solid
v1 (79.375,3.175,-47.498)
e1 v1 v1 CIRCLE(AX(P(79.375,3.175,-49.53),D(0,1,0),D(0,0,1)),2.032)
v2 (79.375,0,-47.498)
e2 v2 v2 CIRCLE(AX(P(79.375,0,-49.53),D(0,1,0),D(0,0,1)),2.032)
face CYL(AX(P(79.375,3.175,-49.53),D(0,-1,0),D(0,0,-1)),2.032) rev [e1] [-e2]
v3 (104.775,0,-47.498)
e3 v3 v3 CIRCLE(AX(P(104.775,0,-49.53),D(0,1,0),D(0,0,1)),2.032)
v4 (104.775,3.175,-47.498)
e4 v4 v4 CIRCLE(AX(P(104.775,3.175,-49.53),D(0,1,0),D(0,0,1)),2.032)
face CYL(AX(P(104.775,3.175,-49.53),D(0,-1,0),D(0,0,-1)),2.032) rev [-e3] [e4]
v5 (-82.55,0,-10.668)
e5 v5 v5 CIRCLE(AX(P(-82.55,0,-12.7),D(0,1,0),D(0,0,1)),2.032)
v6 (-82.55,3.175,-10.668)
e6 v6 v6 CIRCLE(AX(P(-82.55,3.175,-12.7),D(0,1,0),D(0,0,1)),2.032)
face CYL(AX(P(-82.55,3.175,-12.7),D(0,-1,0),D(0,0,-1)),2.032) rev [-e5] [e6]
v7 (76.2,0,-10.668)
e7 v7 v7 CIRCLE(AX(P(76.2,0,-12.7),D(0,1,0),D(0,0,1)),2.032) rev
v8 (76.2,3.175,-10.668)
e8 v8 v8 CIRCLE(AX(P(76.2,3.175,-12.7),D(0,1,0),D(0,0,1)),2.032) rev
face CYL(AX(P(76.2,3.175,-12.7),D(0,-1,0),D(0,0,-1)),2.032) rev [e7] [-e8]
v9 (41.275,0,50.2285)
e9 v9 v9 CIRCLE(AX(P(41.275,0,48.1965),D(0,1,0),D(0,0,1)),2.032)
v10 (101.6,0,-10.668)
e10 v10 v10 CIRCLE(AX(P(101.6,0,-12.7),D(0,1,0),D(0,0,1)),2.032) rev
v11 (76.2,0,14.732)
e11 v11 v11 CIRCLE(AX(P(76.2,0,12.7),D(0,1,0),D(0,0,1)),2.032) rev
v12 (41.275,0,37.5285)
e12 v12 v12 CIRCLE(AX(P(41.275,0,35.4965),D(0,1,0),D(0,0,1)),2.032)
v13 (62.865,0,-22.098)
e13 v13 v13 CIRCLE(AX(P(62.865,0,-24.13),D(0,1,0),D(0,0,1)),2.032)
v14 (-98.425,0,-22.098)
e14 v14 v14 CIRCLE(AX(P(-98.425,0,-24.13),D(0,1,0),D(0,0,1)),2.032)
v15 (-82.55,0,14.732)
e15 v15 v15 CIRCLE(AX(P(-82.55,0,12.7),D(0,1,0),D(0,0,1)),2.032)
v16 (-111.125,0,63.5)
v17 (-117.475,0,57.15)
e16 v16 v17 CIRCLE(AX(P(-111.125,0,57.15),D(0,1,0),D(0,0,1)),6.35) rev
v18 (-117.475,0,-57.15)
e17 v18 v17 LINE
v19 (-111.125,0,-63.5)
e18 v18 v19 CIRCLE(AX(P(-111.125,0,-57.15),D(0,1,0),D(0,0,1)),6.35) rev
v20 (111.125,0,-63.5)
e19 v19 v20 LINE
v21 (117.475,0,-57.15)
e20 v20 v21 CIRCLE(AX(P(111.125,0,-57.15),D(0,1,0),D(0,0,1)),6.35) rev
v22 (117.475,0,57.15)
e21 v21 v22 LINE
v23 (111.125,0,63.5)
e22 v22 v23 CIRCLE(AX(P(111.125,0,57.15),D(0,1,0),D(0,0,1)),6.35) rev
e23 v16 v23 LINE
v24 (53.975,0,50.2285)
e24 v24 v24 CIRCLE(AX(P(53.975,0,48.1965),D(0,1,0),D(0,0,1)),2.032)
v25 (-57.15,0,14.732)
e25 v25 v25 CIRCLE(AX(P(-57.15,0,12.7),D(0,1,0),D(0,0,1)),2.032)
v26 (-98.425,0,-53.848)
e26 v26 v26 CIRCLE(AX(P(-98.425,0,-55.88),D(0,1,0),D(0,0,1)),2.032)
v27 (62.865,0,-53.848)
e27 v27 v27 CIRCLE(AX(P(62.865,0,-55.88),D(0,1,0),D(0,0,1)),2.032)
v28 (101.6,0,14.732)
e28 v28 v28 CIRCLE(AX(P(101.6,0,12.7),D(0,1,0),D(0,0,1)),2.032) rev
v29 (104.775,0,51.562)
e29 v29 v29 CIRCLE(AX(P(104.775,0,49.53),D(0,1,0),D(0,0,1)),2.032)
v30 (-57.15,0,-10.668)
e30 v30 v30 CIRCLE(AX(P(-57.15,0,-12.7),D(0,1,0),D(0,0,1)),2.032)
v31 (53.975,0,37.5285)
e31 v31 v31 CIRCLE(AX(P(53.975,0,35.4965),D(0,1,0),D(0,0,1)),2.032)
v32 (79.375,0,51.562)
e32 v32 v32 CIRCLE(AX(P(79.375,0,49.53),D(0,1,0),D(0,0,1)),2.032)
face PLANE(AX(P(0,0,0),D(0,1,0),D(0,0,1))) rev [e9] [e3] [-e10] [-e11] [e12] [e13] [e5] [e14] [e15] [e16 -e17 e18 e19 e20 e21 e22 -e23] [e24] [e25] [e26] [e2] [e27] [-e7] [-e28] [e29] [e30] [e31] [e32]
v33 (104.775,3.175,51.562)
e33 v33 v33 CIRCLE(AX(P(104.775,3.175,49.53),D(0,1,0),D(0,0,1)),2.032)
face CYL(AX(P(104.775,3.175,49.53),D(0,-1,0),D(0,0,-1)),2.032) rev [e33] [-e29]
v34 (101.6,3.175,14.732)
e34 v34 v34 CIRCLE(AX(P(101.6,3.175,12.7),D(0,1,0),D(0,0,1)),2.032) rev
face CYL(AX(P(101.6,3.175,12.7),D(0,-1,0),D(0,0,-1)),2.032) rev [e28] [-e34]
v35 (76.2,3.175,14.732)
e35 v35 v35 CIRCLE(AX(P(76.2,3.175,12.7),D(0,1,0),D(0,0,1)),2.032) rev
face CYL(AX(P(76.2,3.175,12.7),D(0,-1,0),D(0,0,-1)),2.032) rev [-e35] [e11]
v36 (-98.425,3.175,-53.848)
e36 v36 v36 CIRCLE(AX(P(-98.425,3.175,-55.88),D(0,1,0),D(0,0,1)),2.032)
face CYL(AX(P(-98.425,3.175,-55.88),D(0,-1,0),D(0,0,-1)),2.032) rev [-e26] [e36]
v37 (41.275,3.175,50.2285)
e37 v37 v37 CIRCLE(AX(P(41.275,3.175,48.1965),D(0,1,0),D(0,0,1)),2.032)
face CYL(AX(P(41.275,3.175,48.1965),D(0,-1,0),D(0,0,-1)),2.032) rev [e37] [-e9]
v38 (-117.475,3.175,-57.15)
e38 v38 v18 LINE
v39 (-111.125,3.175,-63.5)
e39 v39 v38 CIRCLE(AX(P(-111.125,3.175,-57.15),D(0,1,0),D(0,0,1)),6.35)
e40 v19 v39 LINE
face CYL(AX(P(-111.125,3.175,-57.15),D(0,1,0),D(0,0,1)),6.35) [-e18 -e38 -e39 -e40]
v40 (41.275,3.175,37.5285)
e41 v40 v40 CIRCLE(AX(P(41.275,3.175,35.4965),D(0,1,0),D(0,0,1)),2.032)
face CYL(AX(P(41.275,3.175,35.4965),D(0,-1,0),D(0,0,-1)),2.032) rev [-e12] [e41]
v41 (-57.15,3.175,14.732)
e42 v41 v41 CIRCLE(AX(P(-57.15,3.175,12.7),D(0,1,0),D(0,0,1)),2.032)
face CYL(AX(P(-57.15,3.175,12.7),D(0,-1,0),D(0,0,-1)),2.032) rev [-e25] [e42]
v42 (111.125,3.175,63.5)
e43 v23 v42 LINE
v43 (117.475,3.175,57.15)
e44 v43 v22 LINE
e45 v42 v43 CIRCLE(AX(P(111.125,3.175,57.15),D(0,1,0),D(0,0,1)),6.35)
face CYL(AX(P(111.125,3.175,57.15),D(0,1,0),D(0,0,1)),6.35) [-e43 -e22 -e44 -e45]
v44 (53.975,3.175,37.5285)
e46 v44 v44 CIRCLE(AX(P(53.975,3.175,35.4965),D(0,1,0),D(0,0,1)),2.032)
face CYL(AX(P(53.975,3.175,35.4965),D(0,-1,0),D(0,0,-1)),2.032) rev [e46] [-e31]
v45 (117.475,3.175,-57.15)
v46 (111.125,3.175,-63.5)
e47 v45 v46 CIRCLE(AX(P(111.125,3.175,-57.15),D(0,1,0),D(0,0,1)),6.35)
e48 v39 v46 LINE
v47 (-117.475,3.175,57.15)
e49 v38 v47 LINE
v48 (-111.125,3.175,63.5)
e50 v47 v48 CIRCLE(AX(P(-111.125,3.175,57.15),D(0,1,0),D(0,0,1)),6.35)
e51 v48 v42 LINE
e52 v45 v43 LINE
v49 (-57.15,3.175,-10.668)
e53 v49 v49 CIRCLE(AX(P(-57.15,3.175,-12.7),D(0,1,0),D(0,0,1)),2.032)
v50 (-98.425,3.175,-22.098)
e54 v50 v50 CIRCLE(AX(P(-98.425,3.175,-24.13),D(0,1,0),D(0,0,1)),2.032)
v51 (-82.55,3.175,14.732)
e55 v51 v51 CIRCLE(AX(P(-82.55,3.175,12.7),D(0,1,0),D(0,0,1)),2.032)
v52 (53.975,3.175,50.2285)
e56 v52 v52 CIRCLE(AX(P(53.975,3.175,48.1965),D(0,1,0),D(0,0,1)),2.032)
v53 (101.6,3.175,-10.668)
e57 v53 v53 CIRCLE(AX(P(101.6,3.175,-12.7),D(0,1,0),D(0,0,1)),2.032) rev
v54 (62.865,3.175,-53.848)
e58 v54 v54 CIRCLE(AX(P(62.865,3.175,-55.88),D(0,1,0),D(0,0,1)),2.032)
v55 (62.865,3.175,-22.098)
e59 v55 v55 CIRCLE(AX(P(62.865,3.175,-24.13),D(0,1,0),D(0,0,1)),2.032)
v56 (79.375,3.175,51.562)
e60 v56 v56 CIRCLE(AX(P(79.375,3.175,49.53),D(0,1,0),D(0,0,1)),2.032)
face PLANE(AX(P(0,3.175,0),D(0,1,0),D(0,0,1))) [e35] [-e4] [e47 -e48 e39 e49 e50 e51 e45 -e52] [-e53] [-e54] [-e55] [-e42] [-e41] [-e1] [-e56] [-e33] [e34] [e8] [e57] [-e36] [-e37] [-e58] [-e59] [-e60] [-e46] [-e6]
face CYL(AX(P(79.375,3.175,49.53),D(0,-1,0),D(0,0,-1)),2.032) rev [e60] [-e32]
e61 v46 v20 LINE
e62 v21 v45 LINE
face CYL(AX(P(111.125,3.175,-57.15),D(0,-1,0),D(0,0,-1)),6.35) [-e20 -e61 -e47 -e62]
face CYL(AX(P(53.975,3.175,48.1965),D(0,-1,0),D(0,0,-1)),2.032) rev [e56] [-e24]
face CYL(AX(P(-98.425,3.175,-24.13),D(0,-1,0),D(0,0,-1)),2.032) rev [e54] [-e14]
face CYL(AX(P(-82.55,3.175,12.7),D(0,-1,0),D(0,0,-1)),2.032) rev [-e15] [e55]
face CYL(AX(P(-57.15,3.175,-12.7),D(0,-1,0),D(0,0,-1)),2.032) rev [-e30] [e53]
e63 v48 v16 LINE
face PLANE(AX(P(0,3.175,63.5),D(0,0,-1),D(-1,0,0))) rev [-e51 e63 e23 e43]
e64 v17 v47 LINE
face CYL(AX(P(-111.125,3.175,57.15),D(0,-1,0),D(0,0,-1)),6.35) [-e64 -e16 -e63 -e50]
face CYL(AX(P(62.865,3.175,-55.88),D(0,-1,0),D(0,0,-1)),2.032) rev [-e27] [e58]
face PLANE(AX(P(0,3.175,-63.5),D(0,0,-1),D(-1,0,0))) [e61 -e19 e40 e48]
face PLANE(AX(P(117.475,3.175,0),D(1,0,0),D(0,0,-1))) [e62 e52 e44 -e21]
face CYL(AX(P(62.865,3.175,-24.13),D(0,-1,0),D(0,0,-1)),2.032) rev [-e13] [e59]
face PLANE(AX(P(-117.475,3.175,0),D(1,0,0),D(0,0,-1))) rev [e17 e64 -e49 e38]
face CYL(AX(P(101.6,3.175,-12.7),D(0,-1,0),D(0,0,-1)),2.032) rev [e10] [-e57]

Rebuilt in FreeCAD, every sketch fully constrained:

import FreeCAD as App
import Part
import Sketcher
Q = App.Units.Quantity


def edges_at(feature, points):
    """Names of the edges that pass closest to the given points."""
    edges = feature.Shape.Edges
    near = lambda p: min(range(len(edges)), key=lambda i: edges[i].distToShape(Part.Vertex(*p))[0])
    return sorted({f"Edge{near(p) + 1}" for p in points})


def add_polygon(sketch, points):
    """Adds a closed chain of lines whose ends are joined by coincident constraints."""
    first, n = sketch.GeometryCount, len(points)
    for a, b in zip(points, points[1:] + points[:1]):
        sketch.addGeometry(Part.LineSegment(App.Vector(*a, 0), App.Vector(*b, 0)), False)
    for i in range(n):
        sketch.addConstraint(Sketcher.Constraint("Coincident", first + i, 2, first + (i + 1) % n, 1))

doc = App.newDocument("Part")
body = doc.addObject("PartDesign::Body", "Body")

sketch1 = body.newObject("Sketcher::SketchObject", "Sketch")
sketch1.AttachmentSupport = (doc.getObject("XZ_Plane"), [""])
sketch1.MapMode = "FlatFace"
add_polygon(sketch1, [(-117.475, -63.5), (-117.475, 63.5), (117.475, 63.5), (117.475, -63.5)])
sketch1.addGeometry(Part.Circle(App.Vector(-82.55, 12.7, 0), App.Vector(0, 0, 1), 2.032), False)
sketch1.addGeometry(Part.Circle(App.Vector(-57.15, 12.7, 0), App.Vector(0, 0, 1), 2.032), False)
sketch1.addGeometry(Part.Circle(App.Vector(41.275, 48.1965, 0), App.Vector(0, 0, 1), 2.032), False)
sketch1.addGeometry(Part.Circle(App.Vector(53.975, 48.1965, 0), App.Vector(0, 0, 1), 2.032), False)
sketch1.addGeometry(Part.Circle(App.Vector(41.275, 35.4965, 0), App.Vector(0, 0, 1), 2.032), False)
sketch1.addGeometry(Part.Circle(App.Vector(53.975, 35.4965, 0), App.Vector(0, 0, 1), 2.032), False)
sketch1.addGeometry(Part.Circle(App.Vector(79.375, 49.53, 0), App.Vector(0, 0, 1), 2.032), False)
sketch1.addGeometry(Part.Circle(App.Vector(104.775, 49.53, 0), App.Vector(0, 0, 1), 2.032), False)
sketch1.addGeometry(Part.Circle(App.Vector(76.2, 12.7, 0), App.Vector(0, 0, 1), 2.032), False)
sketch1.addGeometry(Part.Circle(App.Vector(101.6, 12.7, 0), App.Vector(0, 0, 1), 2.032), False)
sketch1.addGeometry(Part.Circle(App.Vector(-82.55, -12.7, 0), App.Vector(0, 0, 1), 2.032), False)
sketch1.addGeometry(Part.Circle(App.Vector(-57.15, -12.7, 0), App.Vector(0, 0, 1), 2.032), False)
sketch1.addGeometry(Part.Circle(App.Vector(-98.425, -24.13, 0), App.Vector(0, 0, 1), 2.032), False)
sketch1.addGeometry(Part.Circle(App.Vector(-98.425, -55.88, 0), App.Vector(0, 0, 1), 2.032), False)
sketch1.addGeometry(Part.Circle(App.Vector(76.2, -12.7, 0), App.Vector(0, 0, 1), 2.032), False)
sketch1.addGeometry(Part.Circle(App.Vector(101.6, -12.7, 0), App.Vector(0, 0, 1), 2.032), False)
sketch1.addGeometry(Part.Circle(App.Vector(62.865, -24.13, 0), App.Vector(0, 0, 1), 2.032), False)
sketch1.addGeometry(Part.Circle(App.Vector(79.375, -49.53, 0), App.Vector(0, 0, 1), 2.032), False)
sketch1.addGeometry(Part.Circle(App.Vector(62.865, -55.88, 0), App.Vector(0, 0, 1), 2.032), False)
sketch1.addGeometry(Part.Circle(App.Vector(104.775, -49.53, 0), App.Vector(0, 0, 1), 2.032), False)
sketch1.addConstraint([
    Sketcher.Constraint("Vertical", 0),
    Sketcher.Constraint("Horizontal", 1),
    Sketcher.Constraint("Vertical", 2),
    Sketcher.Constraint("Horizontal", 3),
    Sketcher.Constraint("Equal", 4, 5),
    Sketcher.Constraint("Equal", 5, 6),
    Sketcher.Constraint("Equal", 6, 7),
    Sketcher.Constraint("Equal", 7, 8),
    Sketcher.Constraint("Equal", 8, 9),
    Sketcher.Constraint("Equal", 9, 10),
    Sketcher.Constraint("Equal", 10, 11),
    Sketcher.Constraint("Equal", 11, 12),
    Sketcher.Constraint("Equal", 12, 13),
    Sketcher.Constraint("Equal", 13, 14),
    Sketcher.Constraint("Equal", 14, 15),
    Sketcher.Constraint("Equal", 15, 16),
    Sketcher.Constraint("Equal", 16, 17),
    Sketcher.Constraint("Equal", 17, 18),
    Sketcher.Constraint("Equal", 18, 19),
    Sketcher.Constraint("Equal", 19, 20),
    Sketcher.Constraint("Equal", 20, 21),
    Sketcher.Constraint("Equal", 21, 22),
    Sketcher.Constraint("Equal", 22, 23),
    Sketcher.Constraint("Symmetric", 0, 2, 2, 2, -1, 1),
    Sketcher.Constraint("Symmetric", 4, 3, 14, 3, -1),
    Sketcher.Constraint("Symmetric", 5, 3, 15, 3, -1),
    Sketcher.Constraint("Symmetric", 12, 3, 18, 3, -1),
    Sketcher.Constraint("Symmetric", 13, 3, 19, 3, -1),
    Sketcher.Constraint("Symmetric", 10, 3, 21, 3, -1),
    Sketcher.Constraint("Symmetric", 11, 3, 23, 3, -1),
    Sketcher.Constraint("Horizontal", 4, 3, 5, 3),
    Sketcher.Constraint("Horizontal", 6, 3, 7, 3),
    Sketcher.Constraint("Horizontal", 8, 3, 9, 3),
    Sketcher.Constraint("Horizontal", 10, 3, 11, 3),
    Sketcher.Constraint("Horizontal", 5, 3, 12, 3),
    Sketcher.Constraint("Horizontal", 12, 3, 13, 3),
    Sketcher.Constraint("Horizontal", 16, 3, 20, 3),
    Sketcher.Constraint("Horizontal", 17, 3, 22, 3),
    Sketcher.Constraint("Vertical", 6, 3, 8, 3),
    Sketcher.Constraint("Vertical", 7, 3, 9, 3),
    Sketcher.Constraint("Vertical", 16, 3, 17, 3),
    Sketcher.Constraint("Vertical", 20, 3, 22, 3),
    Sketcher.Constraint("Diameter", 4, Q("0.16 in")),
    Sketcher.Constraint("DistanceY", 0, 1, 0, 2, Q("5 in")),
    Sketcher.Constraint("DistanceX", -1, 1, 12, 3, Q("3 in")),
    Sketcher.Constraint("DistanceX", -1, 1, 13, 3, Q("4 in")),
    Sketcher.Constraint("DistanceX", 4, 3, 5, 3, Q("1 in")),
    Sketcher.Constraint("DistanceX", 7, 3, 10, 3, Q("1 in")),
    Sketcher.Constraint("DistanceX", 10, 3, 11, 3, Q("1 in")),
    Sketcher.Constraint("DistanceY", 14, 3, 4, 3, Q("1 in")),
    Sketcher.Constraint("DistanceY", 21, 3, 20, 3, Q("1 in")),
    Sketcher.Constraint("DistanceX", 1, 1, 1, 2, Q("9.25 in")),
    Sketcher.Constraint("DistanceY", 17, 3, -1, 1, Q("2.2 in")),
    Sketcher.Constraint("DistanceX", 6, 3, 7, 3, Q("0.5 in")),
    Sketcher.Constraint("DistanceY", 8, 3, 6, 3, Q("0.5 in")),
    Sketcher.Constraint("DistanceX", 16, 3, 8, 3, Q("5.5 in")),
    Sketcher.Constraint("DistanceX", 11, 3, 1, 2, Q("0.5 in")),
    Sketcher.Constraint("DistanceX", 4, 3, -1, 1, Q("3.25 in")),
    Sketcher.Constraint("DistanceY", -1, 1, 10, 3, Q("1.95 in")),
    Sketcher.Constraint("DistanceX", 9, 3, 20, 3, Q("0.35 in")),
    Sketcher.Constraint("DistanceY", -1, 1, 6, 3, Q("1.8975 in")),
])
pad1 = body.newObject("PartDesign::Pad", "Pad")
pad1.Profile = sketch1
pad1.Length = Q("0.125 in")
pad1.Reversed = True
doc.recompute()

fillet = body.newObject("PartDesign::Fillet", "Fillet")
fillet.Base = (pad1, edges_at(pad1, [
    (117.475, 1.587, 63.5),
    (-117.475, 1.587, 63.5),
    (-117.475, 1.587, -63.5),
    (117.475, 1.587, -63.5),
]))
fillet.Radius = Q("0.25 in")

doc.recompute()
